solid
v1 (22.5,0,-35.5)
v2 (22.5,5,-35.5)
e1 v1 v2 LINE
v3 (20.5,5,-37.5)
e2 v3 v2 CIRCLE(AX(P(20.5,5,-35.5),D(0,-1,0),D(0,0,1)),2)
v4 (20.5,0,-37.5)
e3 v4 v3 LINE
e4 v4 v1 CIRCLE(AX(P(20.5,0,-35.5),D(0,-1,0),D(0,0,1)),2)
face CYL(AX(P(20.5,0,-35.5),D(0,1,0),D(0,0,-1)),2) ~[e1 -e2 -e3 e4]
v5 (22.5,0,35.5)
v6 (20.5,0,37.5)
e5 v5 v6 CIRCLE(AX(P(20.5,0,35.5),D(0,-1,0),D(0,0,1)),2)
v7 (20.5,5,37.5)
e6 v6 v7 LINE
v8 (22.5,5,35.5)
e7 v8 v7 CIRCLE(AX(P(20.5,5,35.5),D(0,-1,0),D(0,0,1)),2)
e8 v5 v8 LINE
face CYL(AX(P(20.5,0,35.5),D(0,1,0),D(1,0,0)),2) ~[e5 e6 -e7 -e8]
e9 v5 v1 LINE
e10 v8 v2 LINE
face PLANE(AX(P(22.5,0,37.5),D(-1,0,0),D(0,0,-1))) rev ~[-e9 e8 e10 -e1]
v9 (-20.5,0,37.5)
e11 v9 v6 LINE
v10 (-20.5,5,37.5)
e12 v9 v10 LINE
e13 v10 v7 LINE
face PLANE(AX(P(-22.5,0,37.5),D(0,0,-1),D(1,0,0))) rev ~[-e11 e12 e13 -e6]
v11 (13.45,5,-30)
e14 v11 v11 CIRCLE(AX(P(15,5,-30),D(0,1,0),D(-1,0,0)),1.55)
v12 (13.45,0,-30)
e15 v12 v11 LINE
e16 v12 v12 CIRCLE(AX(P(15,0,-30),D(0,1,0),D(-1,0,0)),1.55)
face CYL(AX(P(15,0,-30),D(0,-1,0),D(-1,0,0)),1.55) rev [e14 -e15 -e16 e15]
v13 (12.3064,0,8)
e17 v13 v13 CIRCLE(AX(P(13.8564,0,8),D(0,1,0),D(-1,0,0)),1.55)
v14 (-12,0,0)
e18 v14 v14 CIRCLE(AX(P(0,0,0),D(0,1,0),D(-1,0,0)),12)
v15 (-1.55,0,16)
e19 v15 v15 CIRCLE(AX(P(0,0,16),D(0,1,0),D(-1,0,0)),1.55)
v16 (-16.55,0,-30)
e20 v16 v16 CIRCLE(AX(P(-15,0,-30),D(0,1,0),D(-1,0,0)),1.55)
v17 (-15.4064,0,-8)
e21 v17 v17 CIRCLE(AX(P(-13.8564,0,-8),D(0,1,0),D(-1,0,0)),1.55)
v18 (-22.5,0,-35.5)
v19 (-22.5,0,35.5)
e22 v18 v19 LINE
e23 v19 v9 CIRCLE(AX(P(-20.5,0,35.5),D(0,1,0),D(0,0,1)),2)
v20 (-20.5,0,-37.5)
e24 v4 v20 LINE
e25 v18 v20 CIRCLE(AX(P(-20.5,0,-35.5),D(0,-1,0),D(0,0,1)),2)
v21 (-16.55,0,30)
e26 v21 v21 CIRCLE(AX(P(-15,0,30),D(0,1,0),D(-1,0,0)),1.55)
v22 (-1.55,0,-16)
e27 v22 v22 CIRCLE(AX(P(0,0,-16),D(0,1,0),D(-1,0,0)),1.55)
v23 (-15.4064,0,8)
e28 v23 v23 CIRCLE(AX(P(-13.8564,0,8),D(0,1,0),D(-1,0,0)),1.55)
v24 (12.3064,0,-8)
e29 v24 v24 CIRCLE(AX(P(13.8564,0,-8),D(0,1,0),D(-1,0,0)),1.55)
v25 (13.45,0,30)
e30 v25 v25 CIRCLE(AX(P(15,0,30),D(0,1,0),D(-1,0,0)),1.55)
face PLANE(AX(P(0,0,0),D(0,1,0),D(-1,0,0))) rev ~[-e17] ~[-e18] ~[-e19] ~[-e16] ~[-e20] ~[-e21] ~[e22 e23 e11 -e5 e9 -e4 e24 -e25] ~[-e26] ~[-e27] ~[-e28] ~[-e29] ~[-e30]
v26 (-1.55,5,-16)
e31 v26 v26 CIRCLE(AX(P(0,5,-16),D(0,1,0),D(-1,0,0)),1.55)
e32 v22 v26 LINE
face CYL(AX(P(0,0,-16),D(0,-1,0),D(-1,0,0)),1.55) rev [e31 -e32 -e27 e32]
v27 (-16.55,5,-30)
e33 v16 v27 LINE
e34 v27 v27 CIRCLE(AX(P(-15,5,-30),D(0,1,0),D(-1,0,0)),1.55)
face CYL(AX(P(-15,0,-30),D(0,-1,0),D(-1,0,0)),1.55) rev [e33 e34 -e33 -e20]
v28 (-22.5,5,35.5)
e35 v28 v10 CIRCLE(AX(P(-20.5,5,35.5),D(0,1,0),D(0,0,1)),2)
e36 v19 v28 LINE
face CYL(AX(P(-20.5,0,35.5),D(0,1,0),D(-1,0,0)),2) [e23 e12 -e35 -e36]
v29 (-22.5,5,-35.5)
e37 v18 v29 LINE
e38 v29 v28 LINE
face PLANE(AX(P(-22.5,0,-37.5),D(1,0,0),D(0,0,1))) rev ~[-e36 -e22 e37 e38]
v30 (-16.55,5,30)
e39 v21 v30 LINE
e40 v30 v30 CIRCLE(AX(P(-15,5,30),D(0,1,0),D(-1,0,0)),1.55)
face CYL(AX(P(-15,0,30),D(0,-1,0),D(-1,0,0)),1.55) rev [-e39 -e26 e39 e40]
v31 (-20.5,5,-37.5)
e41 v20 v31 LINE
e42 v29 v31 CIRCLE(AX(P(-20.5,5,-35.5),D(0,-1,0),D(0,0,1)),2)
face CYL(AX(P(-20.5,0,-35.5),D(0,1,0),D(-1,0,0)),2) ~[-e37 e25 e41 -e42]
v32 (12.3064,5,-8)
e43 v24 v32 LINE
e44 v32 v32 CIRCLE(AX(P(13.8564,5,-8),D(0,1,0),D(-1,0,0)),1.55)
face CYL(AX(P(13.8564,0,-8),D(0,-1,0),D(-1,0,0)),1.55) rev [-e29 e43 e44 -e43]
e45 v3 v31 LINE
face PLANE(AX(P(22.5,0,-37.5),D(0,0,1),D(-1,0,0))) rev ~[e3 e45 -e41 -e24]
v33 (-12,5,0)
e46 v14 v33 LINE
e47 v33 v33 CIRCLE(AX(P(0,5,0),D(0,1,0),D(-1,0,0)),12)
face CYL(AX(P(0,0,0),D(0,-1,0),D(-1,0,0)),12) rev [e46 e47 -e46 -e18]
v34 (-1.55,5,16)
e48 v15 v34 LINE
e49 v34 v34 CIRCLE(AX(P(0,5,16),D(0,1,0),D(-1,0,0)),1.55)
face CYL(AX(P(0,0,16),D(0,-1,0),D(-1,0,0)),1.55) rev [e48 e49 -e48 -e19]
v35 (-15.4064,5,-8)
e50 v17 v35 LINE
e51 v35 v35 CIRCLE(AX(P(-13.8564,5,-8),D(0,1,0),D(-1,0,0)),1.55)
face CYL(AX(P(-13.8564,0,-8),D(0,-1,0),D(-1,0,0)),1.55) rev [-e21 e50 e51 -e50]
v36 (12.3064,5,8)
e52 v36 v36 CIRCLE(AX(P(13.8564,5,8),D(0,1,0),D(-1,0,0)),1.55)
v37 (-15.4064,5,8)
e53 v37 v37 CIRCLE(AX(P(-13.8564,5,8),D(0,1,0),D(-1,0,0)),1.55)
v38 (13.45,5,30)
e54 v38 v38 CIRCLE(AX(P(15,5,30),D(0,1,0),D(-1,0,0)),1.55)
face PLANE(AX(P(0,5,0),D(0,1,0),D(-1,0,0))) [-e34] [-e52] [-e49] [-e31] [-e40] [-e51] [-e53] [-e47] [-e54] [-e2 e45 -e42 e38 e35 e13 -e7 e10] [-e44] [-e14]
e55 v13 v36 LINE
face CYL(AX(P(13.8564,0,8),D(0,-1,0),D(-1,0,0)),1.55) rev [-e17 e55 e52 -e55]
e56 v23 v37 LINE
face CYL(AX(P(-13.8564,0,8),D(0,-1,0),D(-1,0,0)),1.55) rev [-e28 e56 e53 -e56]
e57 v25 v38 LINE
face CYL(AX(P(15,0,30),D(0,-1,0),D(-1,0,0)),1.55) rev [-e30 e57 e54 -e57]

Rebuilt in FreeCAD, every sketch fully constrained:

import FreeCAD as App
import Part
import Sketcher

V = App.Vector


def edges_at(feature, points):
    """Names of the edges that pass closest to the given points."""
    edges = feature.Shape.Edges
    near = lambda p: min(range(len(edges)), key=lambda i: edges[i].distToShape(Part.Vertex(*p))[0])
    return sorted({f"Edge{near(p) + 1}" for p in points})

doc = App.newDocument("Part")
params = doc.addObject("Spreadsheet::Sheet", "Params")
for row, (alias, value) in enumerate([
    ("sketch1_diameter", "24 mm"),
    ("sketch1_diameter2", "3.1 mm"),
    ("sketch1_width", "45 mm"),
    ("sketch1_height", "75 mm"),
    ("pad1_length", "5 mm"),
    ("fillet_radius", "2 mm"),
], start=1):
    params.set(f"A{row}", alias)
    params.set(f"B{row}", "=" + value)
    params.setAlias(f"B{row}", alias)

body = doc.addObject("PartDesign::Body", "Body")

# Sketch on XZ plane
sketch1 = body.newObject("Sketcher::SketchObject", "Sketch")
sketch1.AttachmentSupport = (doc.getObject("XZ_Plane"), [""])
sketch1.MapMode = "FlatFace"
sketch1.addGeometry(Part.LineSegment(V(-22.5, -37.5, 0), V(-22.5, 37.5, 0)), False)
sketch1.addGeometry(Part.LineSegment(V(-22.5, 37.5, 0), V(22.5, 37.5, 0)), False)
sketch1.addGeometry(Part.LineSegment(V(22.5, 37.5, 0), V(22.5, -37.5, 0)), False)
sketch1.addGeometry(Part.LineSegment(V(22.5, -37.5, 0), V(-22.5, -37.5, 0)), False)
sketch1.addGeometry(Part.Circle(V(15, -30, 0), V(0, 0, 1), 1.55), False)
sketch1.addGeometry(Part.Circle(V(13.8564, -8, 0), V(0, 0, 1), 1.55), False)
sketch1.addGeometry(Part.Circle(V(-15, -30, 0), V(0, 0, 1), 1.55), False)
sketch1.addGeometry(Part.Circle(V(0, -16, 0), V(0, 0, 1), 1.55), False)
sketch1.addGeometry(Part.Circle(V(-13.8564, -8, 0), V(0, 0, 1), 1.55), False)
sketch1.addGeometry(Part.Circle(V(13.8564, 8, 0), V(0, 0, 1), 1.55), False)
sketch1.addGeometry(Part.Circle(V(15, 30, 0), V(0, 0, 1), 1.55), False)
sketch1.addGeometry(Part.Circle(V(0, 0, 0), V(0, 0, 1), 12), False)
sketch1.addGeometry(Part.Circle(V(0, 16, 0), V(0, 0, 1), 1.55), False)
sketch1.addGeometry(Part.Circle(V(-13.8564, 8, 0), V(0, 0, 1), 1.55), False)
sketch1.addGeometry(Part.Circle(V(-15, 30, 0), V(0, 0, 1), 1.55), False)
sketch1.addConstraint(Sketcher.Constraint("Coincident", 0, 2, 1, 1))
sketch1.addConstraint(Sketcher.Constraint("Coincident", 1, 2, 2, 1))
sketch1.addConstraint(Sketcher.Constraint("Coincident", 2, 2, 3, 1))
sketch1.addConstraint(Sketcher.Constraint("Coincident", 3, 2, 0, 1))
sketch1.addConstraint(Sketcher.Constraint("Vertical", 0))
sketch1.addConstraint(Sketcher.Constraint("Horizontal", 1))
sketch1.addConstraint(Sketcher.Constraint("Vertical", 2))
sketch1.addConstraint(Sketcher.Constraint("Horizontal", 3))
sketch1.addConstraint(Sketcher.Constraint("Coincident", 11, 3, -1, 1))
sketch1.addConstraint(Sketcher.Constraint("Equal", 4, 5))
sketch1.addConstraint(Sketcher.Constraint("Equal", 5, 6))
sketch1.addConstraint(Sketcher.Constraint("Equal", 6, 7))
sketch1.addConstraint(Sketcher.Constraint("Equal", 7, 8))
sketch1.addConstraint(Sketcher.Constraint("Equal", 8, 9))
sketch1.addConstraint(Sketcher.Constraint("Equal", 9, 10))
sketch1.addConstraint(Sketcher.Constraint("Equal", 10, 12))
sketch1.addConstraint(Sketcher.Constraint("Equal", 12, 13))
sketch1.addConstraint(Sketcher.Constraint("Equal", 13, 14))
sketch1.addConstraint(Sketcher.Constraint("Symmetric", 8, 3, 9, 3, -1, 1))
sketch1.addConstraint(Sketcher.Constraint("Symmetric", 6, 3, 10, 3, -1, 1))
sketch1.addConstraint(Sketcher.Constraint("Symmetric", 7, 3, 12, 3, -1, 1))
sketch1.addConstraint(Sketcher.Constraint("Symmetric", 5, 3, 13, 3, -1, 1))
sketch1.addConstraint(Sketcher.Constraint("Symmetric", 4, 3, 14, 3, -1, 1))
sketch1.addConstraint(Sketcher.Constraint("Symmetric", 0, 2, 2, 2, -1, 1))
sketch1.addConstraint(Sketcher.Constraint("Symmetric", 4, 3, 6, 3, -2))
sketch1.addConstraint(Sketcher.Constraint("Symmetric", 5, 3, 8, 3, -2))
sketch1.addConstraint(Sketcher.Constraint("PointOnObject", 7, 3, -2))
sketch1.addConstraint(Sketcher.Constraint("Diameter", 11, 24.0))
sketch1.addConstraint(Sketcher.Constraint("Diameter", 4, 3.1))
sketch1.addConstraint(Sketcher.Constraint("DistanceX", 1, 1, 1, 2, 45.0))
sketch1.addConstraint(Sketcher.Constraint("DistanceY", 0, 1, 0, 2, 75.0))
sketch1.addConstraint(Sketcher.Constraint("DistanceY", 4, 3, -1, 1, 30.0))
sketch1.addConstraint(Sketcher.Constraint("DistanceX", 6, 3, 4, 3, 30.0))
sketch1.addConstraint(Sketcher.Constraint("DistanceY", 7, 3, 9, 3, 24.0))
sketch1.addConstraint(Sketcher.Constraint("DistanceY", 5, 3, -1, 1, 8.0))
sketch1.addConstraint(Sketcher.Constraint("DistanceX", -1, 1, 5, 3, 13.8564))
sketch1.setExpression("Constraints[27]", "Params.sketch1_diameter")
sketch1.setExpression("Constraints[28]", "Params.sketch1_diameter2")
sketch1.setExpression("Constraints[29]", "Params.sketch1_width")
sketch1.setExpression("Constraints[30]", "Params.sketch1_height")
pad1 = body.newObject("PartDesign::Pad", "Pad")
pad1.Profile = sketch1
pad1.setExpression("Length", "Params.pad1_length")
pad1.Reversed = True
doc.recompute()

fillet = body.newObject("PartDesign::Fillet", "Fillet")
fillet.Base = (pad1, edges_at(pad1, [
    (22.5, 2.5, 37.5),
    (-22.5, 2.5, 37.5),
    (-22.5, 2.5, -37.5),
    (22.5, 2.5, -37.5),
]))
fillet.setExpression("Radius", "Params.fillet_radius")

doc.recompute()
